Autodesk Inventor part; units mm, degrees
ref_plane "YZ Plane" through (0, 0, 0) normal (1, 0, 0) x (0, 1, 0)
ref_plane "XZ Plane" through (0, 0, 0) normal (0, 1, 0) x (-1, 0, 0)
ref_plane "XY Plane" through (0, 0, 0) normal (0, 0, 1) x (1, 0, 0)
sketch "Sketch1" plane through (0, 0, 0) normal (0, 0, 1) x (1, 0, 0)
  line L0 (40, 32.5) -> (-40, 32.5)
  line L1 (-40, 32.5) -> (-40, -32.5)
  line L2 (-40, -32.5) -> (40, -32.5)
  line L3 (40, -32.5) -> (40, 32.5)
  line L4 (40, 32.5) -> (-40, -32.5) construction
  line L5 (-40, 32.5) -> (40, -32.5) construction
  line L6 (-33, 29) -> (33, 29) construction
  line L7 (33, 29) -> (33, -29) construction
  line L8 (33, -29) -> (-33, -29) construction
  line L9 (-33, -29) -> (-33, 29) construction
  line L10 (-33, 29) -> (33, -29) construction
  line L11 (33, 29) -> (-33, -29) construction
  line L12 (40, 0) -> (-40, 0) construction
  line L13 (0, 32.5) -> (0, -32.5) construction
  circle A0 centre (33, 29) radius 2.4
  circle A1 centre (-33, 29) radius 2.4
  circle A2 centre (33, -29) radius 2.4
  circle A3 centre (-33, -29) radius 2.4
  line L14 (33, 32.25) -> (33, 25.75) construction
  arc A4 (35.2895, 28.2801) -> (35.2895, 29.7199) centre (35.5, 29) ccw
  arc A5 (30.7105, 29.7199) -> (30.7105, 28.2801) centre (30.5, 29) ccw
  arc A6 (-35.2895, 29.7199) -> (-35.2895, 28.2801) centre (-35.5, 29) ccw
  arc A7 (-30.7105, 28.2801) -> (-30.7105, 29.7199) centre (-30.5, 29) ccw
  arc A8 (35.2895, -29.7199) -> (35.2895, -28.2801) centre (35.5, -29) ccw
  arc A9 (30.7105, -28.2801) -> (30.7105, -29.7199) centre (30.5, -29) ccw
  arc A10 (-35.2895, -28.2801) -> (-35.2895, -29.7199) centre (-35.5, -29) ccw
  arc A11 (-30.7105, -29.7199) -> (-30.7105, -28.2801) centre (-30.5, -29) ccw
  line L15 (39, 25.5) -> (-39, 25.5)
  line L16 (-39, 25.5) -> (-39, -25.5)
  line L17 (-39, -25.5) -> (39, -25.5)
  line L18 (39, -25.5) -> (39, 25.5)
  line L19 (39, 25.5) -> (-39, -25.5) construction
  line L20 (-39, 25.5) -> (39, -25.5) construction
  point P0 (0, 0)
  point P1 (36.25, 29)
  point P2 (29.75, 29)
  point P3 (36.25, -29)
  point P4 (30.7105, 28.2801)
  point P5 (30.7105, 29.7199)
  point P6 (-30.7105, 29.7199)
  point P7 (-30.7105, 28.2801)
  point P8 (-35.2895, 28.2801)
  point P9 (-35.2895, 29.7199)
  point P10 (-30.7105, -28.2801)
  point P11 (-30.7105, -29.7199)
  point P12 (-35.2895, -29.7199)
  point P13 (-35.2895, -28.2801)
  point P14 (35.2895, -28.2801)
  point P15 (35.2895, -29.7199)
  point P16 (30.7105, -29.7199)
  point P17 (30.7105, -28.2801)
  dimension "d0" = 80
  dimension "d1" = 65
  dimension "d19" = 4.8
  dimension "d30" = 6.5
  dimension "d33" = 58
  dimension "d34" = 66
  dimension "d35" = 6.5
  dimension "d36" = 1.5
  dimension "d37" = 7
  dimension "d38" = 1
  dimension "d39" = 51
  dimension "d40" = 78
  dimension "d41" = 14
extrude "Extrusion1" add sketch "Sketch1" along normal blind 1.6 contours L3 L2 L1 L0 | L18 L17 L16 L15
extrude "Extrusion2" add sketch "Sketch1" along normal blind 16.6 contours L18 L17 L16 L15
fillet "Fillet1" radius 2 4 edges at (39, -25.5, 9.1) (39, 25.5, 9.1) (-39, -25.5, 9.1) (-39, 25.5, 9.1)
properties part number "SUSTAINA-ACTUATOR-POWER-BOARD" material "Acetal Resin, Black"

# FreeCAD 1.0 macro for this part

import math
import FreeCAD as App
import Part
import Sketcher
Q = App.Units.Quantity


def edges_at(feature, points):
    """Names of the edges that pass closest to the given points."""
    edges = feature.Shape.Edges
    near = lambda p: min(range(len(edges)), key=lambda i: edges[i].distToShape(Part.Vertex(*p))[0])
    return sorted({f"Edge{near(p) + 1}" for p in points})

doc = App.newDocument("Part")
params = doc.addObject("Spreadsheet::Sheet", "Params")
for row, (alias, value) in enumerate([
    ("sketch1_radius", "2.4 mm"),
    ("sketch1_width", "80 mm"),
    ("sketch1_height", "65 mm"),
    ("sketch1_radius2", "0.75 mm"),
    ("pad1_length", "1.6 mm"),
    ("sketch2_width", "78 mm"),
    ("sketch2_height", "51 mm"),
    ("pad2_length", "16.6 mm"),
    ("fillet_radius", "2 mm"),
], start=1):
    params.set(f"A{row}", alias)
    params.set(f"B{row}", "=" + value)
    params.setAlias(f"B{row}", alias)

body = doc.addObject("PartDesign::Body", "Body")

sketch1 = doc.addObject("Sketcher::SketchObject", "Sketch")
body.addObject(sketch1)
sketch1.AttachmentSupport = (doc.XY_Plane, [""])
sketch1.MapMode = "FlatFace"
sketch1.addGeometry(Part.LineSegment(App.Vector(40, -32.5, 0), App.Vector(40, 32.5, 0)), False)
sketch1.addGeometry(Part.LineSegment(App.Vector(40, 32.5, 0), App.Vector(-40, 32.5, 0)), False)
sketch1.addGeometry(Part.LineSegment(App.Vector(-40, 32.5, 0), App.Vector(-40, -32.5, 0)), False)
sketch1.addGeometry(Part.LineSegment(App.Vector(-40, -32.5, 0), App.Vector(40, -32.5, 0)), False)
sketch1.addGeometry(Part.ArcOfCircle(Part.Circle(App.Vector(-33, -29, 0), App.Vector(0, 0, 1), 2.4), math.radians(17), math.radians(163)), False)
sketch1.addGeometry(Part.ArcOfCircle(Part.Circle(App.Vector(-30.5, -29, 0), App.Vector(0, 0, 1), 0.8), math.radians(-106), math.radians(106)), False)
sketch1.addGeometry(Part.ArcOfCircle(Part.Circle(App.Vector(-33, -29, 0), App.Vector(0, 0, 1), 2.4), math.radians(-163), math.radians(-17)), False)
sketch1.addGeometry(Part.ArcOfCircle(Part.Circle(App.Vector(-35.5, -29, 0), App.Vector(0, 0, 1), 0.8), math.radians(74), math.radians(286)), False)
sketch1.addGeometry(Part.ArcOfCircle(Part.Circle(App.Vector(33, -29, 0), App.Vector(0, 0, 1), 2.4), math.radians(17), math.radians(163)), False)
sketch1.addGeometry(Part.ArcOfCircle(Part.Circle(App.Vector(35.5, -29, 0), App.Vector(0, 0, 1), 0.8), math.radians(-106), math.radians(106)), False)
sketch1.addGeometry(Part.ArcOfCircle(Part.Circle(App.Vector(33, -29, 0), App.Vector(0, 0, 1), 2.4), math.radians(-163), math.radians(-17)), False)
sketch1.addGeometry(Part.ArcOfCircle(Part.Circle(App.Vector(30.5, -29, 0), App.Vector(0, 0, 1), 0.8), math.radians(74), math.radians(286)), False)
sketch1.addGeometry(Part.ArcOfCircle(Part.Circle(App.Vector(-33, 29, 0), App.Vector(0, 0, 1), 2.4), math.radians(17), math.radians(163)), False)
sketch1.addGeometry(Part.ArcOfCircle(Part.Circle(App.Vector(-30.5, 29, 0), App.Vector(0, 0, 1), 0.8), math.radians(-106), math.radians(106)), False)
sketch1.addGeometry(Part.ArcOfCircle(Part.Circle(App.Vector(-33, 29, 0), App.Vector(0, 0, 1), 2.4), math.radians(-163), math.radians(-17)), False)
sketch1.addGeometry(Part.ArcOfCircle(Part.Circle(App.Vector(-35.5, 29, 0), App.Vector(0, 0, 1), 0.8), math.radians(74), math.radians(286)), False)
sketch1.addGeometry(Part.ArcOfCircle(Part.Circle(App.Vector(33, 29, 0), App.Vector(0, 0, 1), 2.4), math.radians(17), math.radians(163)), False)
sketch1.addGeometry(Part.ArcOfCircle(Part.Circle(App.Vector(35.5, 29, 0), App.Vector(0, 0, 1), 0.8), math.radians(-106), math.radians(106)), False)
sketch1.addGeometry(Part.ArcOfCircle(Part.Circle(App.Vector(33, 29, 0), App.Vector(0, 0, 1), 2.4), math.radians(-163), math.radians(-17)), False)
sketch1.addGeometry(Part.ArcOfCircle(Part.Circle(App.Vector(30.5, 29, 0), App.Vector(0, 0, 1), 0.8), math.radians(74), math.radians(286)), False)
sketch1.addConstraint(Sketcher.Constraint("Coincident", 0, 2, 1, 1))
sketch1.addConstraint(Sketcher.Constraint("Coincident", 1, 2, 2, 1))
sketch1.addConstraint(Sketcher.Constraint("Coincident", 2, 2, 3, 1))
sketch1.addConstraint(Sketcher.Constraint("Coincident", 3, 2, 0, 1))
sketch1.addConstraint(Sketcher.Constraint("Coincident", 4, 1, 5, 2))
sketch1.addConstraint(Sketcher.Constraint("Coincident", 5, 1, 6, 2))
sketch1.addConstraint(Sketcher.Constraint("Coincident", 6, 1, 7, 2))
sketch1.addConstraint(Sketcher.Constraint("Coincident", 7, 1, 4, 2))
sketch1.addConstraint(Sketcher.Constraint("Coincident", 8, 1, 9, 2))
sketch1.addConstraint(Sketcher.Constraint("Coincident", 9, 1, 10, 2))
sketch1.addConstraint(Sketcher.Constraint("Coincident", 10, 1, 11, 2))
sketch1.addConstraint(Sketcher.Constraint("Coincident", 11, 1, 8, 2))
sketch1.addConstraint(Sketcher.Constraint("Coincident", 12, 1, 13, 2))
sketch1.addConstraint(Sketcher.Constraint("Coincident", 13, 1, 14, 2))
sketch1.addConstraint(Sketcher.Constraint("Coincident", 14, 1, 15, 2))
sketch1.addConstraint(Sketcher.Constraint("Coincident", 15, 1, 12, 2))
sketch1.addConstraint(Sketcher.Constraint("Coincident", 16, 1, 17, 2))
sketch1.addConstraint(Sketcher.Constraint("Coincident", 17, 1, 18, 2))
sketch1.addConstraint(Sketcher.Constraint("Coincident", 18, 1, 19, 2))
sketch1.addConstraint(Sketcher.Constraint("Coincident", 19, 1, 16, 2))
sketch1.addConstraint(Sketcher.Constraint("Vertical", 0))
sketch1.addConstraint(Sketcher.Constraint("Horizontal", 1))
sketch1.addConstraint(Sketcher.Constraint("Vertical", 2))
sketch1.addConstraint(Sketcher.Constraint("Horizontal", 3))
sketch1.addConstraint(Sketcher.Constraint("Coincident", 6, 3, 4, 3))
sketch1.addConstraint(Sketcher.Constraint("Coincident", 10, 3, 8, 3))
sketch1.addConstraint(Sketcher.Constraint("Coincident", 14, 3, 12, 3))
sketch1.addConstraint(Sketcher.Constraint("Coincident", 18, 3, 16, 3))
sketch1.addConstraint(Sketcher.Constraint("Equal", 4, 6))
sketch1.addConstraint(Sketcher.Constraint("Equal", 5, 7))
sketch1.addConstraint(Sketcher.Constraint("Equal", 6, 8))
sketch1.addConstraint(Sketcher.Constraint("Equal", 7, 9))
sketch1.addConstraint(Sketcher.Constraint("Equal", 8, 10))
sketch1.addConstraint(Sketcher.Constraint("Equal", 9, 11))
sketch1.addConstraint(Sketcher.Constraint("Equal", 10, 12))
sketch1.addConstraint(Sketcher.Constraint("Equal", 11, 13))
sketch1.addConstraint(Sketcher.Constraint("Equal", 12, 14))
sketch1.addConstraint(Sketcher.Constraint("Equal", 13, 15))
sketch1.addConstraint(Sketcher.Constraint("Equal", 14, 16))
sketch1.addConstraint(Sketcher.Constraint("Equal", 15, 17))
sketch1.addConstraint(Sketcher.Constraint("Equal", 16, 18))
sketch1.addConstraint(Sketcher.Constraint("Equal", 17, 19))
sketch1.addConstraint(Sketcher.Constraint("Symmetric", 8, 3, 12, 3, -1, 1))
sketch1.addConstraint(Sketcher.Constraint("Symmetric", 11, 3, 13, 3, -1, 1))
sketch1.addConstraint(Sketcher.Constraint("Symmetric", 9, 3, 15, 3, -1, 1))
sketch1.addConstraint(Sketcher.Constraint("Symmetric", 4, 3, 16, 3, -1, 1))
sketch1.addConstraint(Sketcher.Constraint("Symmetric", 7, 3, 17, 3, -1, 1))
sketch1.addConstraint(Sketcher.Constraint("Symmetric", 5, 3, 19, 3, -1, 1))
sketch1.addConstraint(Sketcher.Constraint("Symmetric", 0, 2, 2, 2, -1, 1))
sketch1.addConstraint(Sketcher.Constraint("Symmetric", 4, 3, 8, 3, -2))
sketch1.addConstraint(Sketcher.Constraint("Symmetric", 7, 3, 9, 3, -2))
sketch1.addConstraint(Sketcher.Constraint("Symmetric", 5, 3, 11, 3, -2))
sketch1.addConstraint(Sketcher.Constraint("Horizontal", 4, 3, 5, 3))
sketch1.addConstraint(Sketcher.Constraint("Horizontal", 6, 3, 7, 3))
sketch1.addConstraint(Sketcher.Constraint("Horizontal", 5, 1, 6, 1))
sketch1.addConstraint(Sketcher.Constraint("Radius", 4, Q("2.4 mm")))
sketch1.addConstraint(Sketcher.Constraint("DistanceX", 1, 2, 1, 1, Q("80 mm")))
sketch1.addConstraint(Sketcher.Constraint("DistanceY", 0, 1, 0, 2, Q("65 mm")))
sketch1.addConstraint(Sketcher.Constraint("Radius", 5, Q("0.75 mm")))
sketch1.addConstraint(Sketcher.Constraint("DistanceX", 4, 3, 8, 3, Q("66 mm")))
sketch1.addConstraint(Sketcher.Constraint("DistanceY", 4, 3, 12, 3, Q("58 mm")))
sketch1.addConstraint(Sketcher.Constraint("DistanceX", 7, 3, 5, 3, Q("5 mm")))
sketch1.setExpression("Constraints[55]", "Params.sketch1_radius")
sketch1.setExpression("Constraints[56]", "Params.sketch1_width")
sketch1.setExpression("Constraints[57]", "Params.sketch1_height")
sketch1.setExpression("Constraints[58]", "Params.sketch1_radius2")
pad1 = doc.addObject("PartDesign::Pad", "Pad")
body.addObject(pad1)
pad1.Profile = sketch1
pad1.setExpression("Length", "Params.pad1_length")

sketch2 = doc.addObject("Sketcher::SketchObject", "Sketch001")
body.addObject(sketch2)
sketch2.AttachmentSupport = (doc.XY_Plane, [""])
sketch2.MapMode = "FlatFace"
sketch2.addGeometry(Part.LineSegment(App.Vector(39, -26, 0), App.Vector(39, 26, 0)), False)
sketch2.addGeometry(Part.LineSegment(App.Vector(39, 26, 0), App.Vector(-39, 26, 0)), False)
sketch2.addGeometry(Part.LineSegment(App.Vector(-39, 26, 0), App.Vector(-39, -26, 0)), False)
sketch2.addGeometry(Part.LineSegment(App.Vector(-39, -26, 0), App.Vector(39, -26, 0)), False)
sketch2.addConstraint(Sketcher.Constraint("Coincident", 0, 2, 1, 1))
sketch2.addConstraint(Sketcher.Constraint("Coincident", 1, 2, 2, 1))
sketch2.addConstraint(Sketcher.Constraint("Coincident", 2, 2, 3, 1))
sketch2.addConstraint(Sketcher.Constraint("Coincident", 3, 2, 0, 1))
sketch2.addConstraint(Sketcher.Constraint("Vertical", 0))
sketch2.addConstraint(Sketcher.Constraint("Horizontal", 1))
sketch2.addConstraint(Sketcher.Constraint("Vertical", 2))
sketch2.addConstraint(Sketcher.Constraint("Horizontal", 3))
sketch2.addConstraint(Sketcher.Constraint("Symmetric", 0, 2, 2, 2, -1, 1))
sketch2.addConstraint(Sketcher.Constraint("DistanceX", 1, 2, 1, 1, Q("78 mm")))
sketch2.addConstraint(Sketcher.Constraint("DistanceY", 0, 1, 0, 2, Q("51 mm")))
sketch2.setExpression("Constraints[9]", "Params.sketch2_width")
sketch2.setExpression("Constraints[10]", "Params.sketch2_height")
pad2 = doc.addObject("PartDesign::Pad", "Pad001")
body.addObject(pad2)
pad2.Profile = sketch2
pad2.setExpression("Length", "Params.pad2_length")
doc.recompute()

fillet = doc.addObject("PartDesign::Fillet", "Fillet")
body.addObject(fillet)
fillet.Base = (pad2, edges_at(pad2, [
    (39, -25.5, 9.1),
    (39, 25.5, 9.1),
    (-39, -25.5, 9.1),
    (-39, 25.5, 9.1),
]))
fillet.setExpression("Radius", "Params.fillet_radius")

doc.recompute()
